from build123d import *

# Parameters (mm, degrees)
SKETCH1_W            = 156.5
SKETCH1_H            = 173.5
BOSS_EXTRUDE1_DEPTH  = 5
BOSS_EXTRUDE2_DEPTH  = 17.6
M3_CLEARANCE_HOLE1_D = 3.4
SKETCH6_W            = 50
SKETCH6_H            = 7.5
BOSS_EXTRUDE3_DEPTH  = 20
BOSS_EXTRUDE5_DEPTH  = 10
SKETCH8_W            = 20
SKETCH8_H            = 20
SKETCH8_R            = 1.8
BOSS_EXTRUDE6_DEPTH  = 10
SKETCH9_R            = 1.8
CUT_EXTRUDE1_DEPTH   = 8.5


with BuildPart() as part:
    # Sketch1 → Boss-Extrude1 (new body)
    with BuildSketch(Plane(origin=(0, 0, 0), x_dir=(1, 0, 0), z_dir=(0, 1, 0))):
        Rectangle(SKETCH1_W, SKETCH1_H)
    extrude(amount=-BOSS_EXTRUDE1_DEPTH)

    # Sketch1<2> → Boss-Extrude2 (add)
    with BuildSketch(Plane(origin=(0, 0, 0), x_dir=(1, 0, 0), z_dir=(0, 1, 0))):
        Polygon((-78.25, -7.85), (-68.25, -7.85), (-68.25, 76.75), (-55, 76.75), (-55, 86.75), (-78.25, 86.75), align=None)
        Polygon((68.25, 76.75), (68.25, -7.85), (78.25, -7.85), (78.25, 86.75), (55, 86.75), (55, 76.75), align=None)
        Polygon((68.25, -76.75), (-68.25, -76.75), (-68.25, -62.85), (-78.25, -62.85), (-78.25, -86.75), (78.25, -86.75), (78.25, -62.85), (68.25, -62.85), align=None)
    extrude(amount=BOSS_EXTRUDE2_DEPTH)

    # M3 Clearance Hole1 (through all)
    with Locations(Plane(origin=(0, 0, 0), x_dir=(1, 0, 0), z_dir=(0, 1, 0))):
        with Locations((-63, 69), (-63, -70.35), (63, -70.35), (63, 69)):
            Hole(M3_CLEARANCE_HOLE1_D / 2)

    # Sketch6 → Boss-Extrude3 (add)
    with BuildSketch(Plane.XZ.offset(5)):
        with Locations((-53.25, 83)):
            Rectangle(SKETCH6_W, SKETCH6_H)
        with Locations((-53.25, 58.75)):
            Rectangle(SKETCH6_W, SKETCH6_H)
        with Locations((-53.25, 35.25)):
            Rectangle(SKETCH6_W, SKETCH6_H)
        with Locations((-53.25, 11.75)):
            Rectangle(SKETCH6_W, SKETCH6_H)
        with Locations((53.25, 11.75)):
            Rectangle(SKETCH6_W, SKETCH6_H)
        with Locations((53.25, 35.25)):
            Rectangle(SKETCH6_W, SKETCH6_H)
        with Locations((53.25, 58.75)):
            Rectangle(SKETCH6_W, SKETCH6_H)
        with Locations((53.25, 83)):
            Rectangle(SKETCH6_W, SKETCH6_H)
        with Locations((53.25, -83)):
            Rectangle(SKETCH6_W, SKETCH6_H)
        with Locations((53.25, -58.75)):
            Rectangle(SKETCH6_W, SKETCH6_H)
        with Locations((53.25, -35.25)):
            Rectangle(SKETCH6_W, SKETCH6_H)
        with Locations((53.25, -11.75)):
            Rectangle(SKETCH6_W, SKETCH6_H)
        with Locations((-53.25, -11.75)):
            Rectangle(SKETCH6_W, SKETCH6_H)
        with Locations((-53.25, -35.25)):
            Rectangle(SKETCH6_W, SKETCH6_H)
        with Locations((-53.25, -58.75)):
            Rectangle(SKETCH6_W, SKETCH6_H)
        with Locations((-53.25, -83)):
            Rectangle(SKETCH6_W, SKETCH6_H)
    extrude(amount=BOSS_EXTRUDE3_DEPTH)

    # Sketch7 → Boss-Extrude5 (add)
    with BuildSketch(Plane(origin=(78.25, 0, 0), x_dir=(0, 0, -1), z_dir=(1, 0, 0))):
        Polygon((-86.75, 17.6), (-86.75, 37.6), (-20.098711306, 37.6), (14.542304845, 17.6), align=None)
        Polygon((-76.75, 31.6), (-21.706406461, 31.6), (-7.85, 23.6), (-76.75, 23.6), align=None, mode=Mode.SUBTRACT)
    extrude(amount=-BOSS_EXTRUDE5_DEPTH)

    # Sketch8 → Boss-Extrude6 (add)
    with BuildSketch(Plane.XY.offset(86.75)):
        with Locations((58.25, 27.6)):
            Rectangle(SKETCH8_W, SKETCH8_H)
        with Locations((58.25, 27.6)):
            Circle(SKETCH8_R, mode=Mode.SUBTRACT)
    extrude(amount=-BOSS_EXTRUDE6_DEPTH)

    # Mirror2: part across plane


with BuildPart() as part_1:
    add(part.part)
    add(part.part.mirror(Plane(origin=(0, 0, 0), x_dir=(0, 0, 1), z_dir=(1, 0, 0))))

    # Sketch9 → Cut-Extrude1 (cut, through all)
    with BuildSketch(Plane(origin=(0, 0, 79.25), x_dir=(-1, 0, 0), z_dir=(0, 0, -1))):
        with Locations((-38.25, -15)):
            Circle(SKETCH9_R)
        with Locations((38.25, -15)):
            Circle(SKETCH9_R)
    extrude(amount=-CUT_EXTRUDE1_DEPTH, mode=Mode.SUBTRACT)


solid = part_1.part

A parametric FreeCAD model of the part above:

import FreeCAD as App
import Part
import Sketcher

V = App.Vector
Q = App.Units.Quantity

doc = App.newDocument("Part")
body = doc.addObject("PartDesign::Body", "Body")

sketch1 = doc.addObject("Sketcher::SketchObject", "Sketch")
body.addObject(sketch1)
sketch1.AttachmentSupport = (doc.XZ_Plane, [""])
sketch1.MapMode = "FlatFace"
sketch1.addGeometry(Part.LineSegment(V(-78, -87, 0), V(-78, 87, 0)), False)
sketch1.addGeometry(Part.LineSegment(V(-78, 87, 0), V(78, 87, 0)), False)
sketch1.addGeometry(Part.LineSegment(V(78, 87, 0), V(78, -87, 0)), False)
sketch1.addGeometry(Part.LineSegment(V(78, -87, 0), V(-78, -87, 0)), False)
sketch1.addConstraint(Sketcher.Constraint("Coincident", 0, 2, 1, 1))
sketch1.addConstraint(Sketcher.Constraint("Coincident", 1, 2, 2, 1))
sketch1.addConstraint(Sketcher.Constraint("Coincident", 2, 2, 3, 1))
sketch1.addConstraint(Sketcher.Constraint("Coincident", 3, 2, 0, 1))
sketch1.addConstraint(Sketcher.Constraint("Vertical", 0))
sketch1.addConstraint(Sketcher.Constraint("Horizontal", 1))
sketch1.addConstraint(Sketcher.Constraint("Vertical", 2))
sketch1.addConstraint(Sketcher.Constraint("Horizontal", 3))
sketch1.addConstraint(Sketcher.Constraint("Symmetric", 0, 2, 2, 2, -1, 1))
sketch1.addConstraint(Sketcher.Constraint("DistanceX", 1, 1, 1, 2, Q("156.5 mm")))
sketch1.addConstraint(Sketcher.Constraint("DistanceY", 0, 1, 0, 2, Q("173.5 mm")))
pad1 = doc.addObject("PartDesign::Pad", "Pad")
body.addObject(pad1)
pad1.Profile = sketch1
pad1.Length = 5

sketch2 = doc.addObject("Sketcher::SketchObject", "Sketch001")
body.addObject(sketch2)
sketch2.AttachmentSupport = (doc.XZ_Plane, [""])
sketch2.MapMode = "FlatFace"
sketch2.addGeometry(Part.LineSegment(V(-78, 8, 0), V(-68, 8, 0)), False)
sketch2.addGeometry(Part.LineSegment(V(-68, 8, 0), V(-68, -77, 0)), False)
sketch2.addGeometry(Part.LineSegment(V(-68, -77, 0), V(-55, -77, 0)), False)
sketch2.addGeometry(Part.LineSegment(V(-55, -77, 0), V(-55, -87, 0)), False)
sketch2.addGeometry(Part.LineSegment(V(-55, -87, 0), V(-78, -87, 0)), False)
sketch2.addGeometry(Part.LineSegment(V(-78, -87, 0), V(-78, 8, 0)), False)
sketch2.addGeometry(Part.LineSegment(V(68, -77, 0), V(68, 8, 0)), False)
sketch2.addGeometry(Part.LineSegment(V(68, 8, 0), V(78, 8, 0)), False)
sketch2.addGeometry(Part.LineSegment(V(78, 8, 0), V(78, -87, 0)), False)
sketch2.addGeometry(Part.LineSegment(V(78, -87, 0), V(55, -87, 0)), False)
sketch2.addGeometry(Part.LineSegment(V(55, -87, 0), V(55, -77, 0)), False)
sketch2.addGeometry(Part.LineSegment(V(55, -77, 0), V(68, -77, 0)), False)
sketch2.addGeometry(Part.LineSegment(V(68, 77, 0), V(-68, 77, 0)), False)
sketch2.addGeometry(Part.LineSegment(V(-68, 77, 0), V(-68, 63, 0)), False)
sketch2.addGeometry(Part.LineSegment(V(-68, 63, 0), V(-78, 63, 0)), False)
sketch2.addGeometry(Part.LineSegment(V(-78, 63, 0), V(-78, 87, 0)), False)
sketch2.addGeometry(Part.LineSegment(V(-78, 87, 0), V(78, 87, 0)), False)
sketch2.addGeometry(Part.LineSegment(V(78, 87, 0), V(78, 63, 0)), False)
sketch2.addGeometry(Part.LineSegment(V(78, 63, 0), V(68, 63, 0)), False)
sketch2.addGeometry(Part.LineSegment(V(68, 63, 0), V(68, 77, 0)), False)
sketch2.addConstraint(Sketcher.Constraint("Coincident", 0, 2, 1, 1))
sketch2.addConstraint(Sketcher.Constraint("Coincident", 1, 2, 2, 1))
sketch2.addConstraint(Sketcher.Constraint("Coincident", 2, 2, 3, 1))
sketch2.addConstraint(Sketcher.Constraint("Coincident", 3, 2, 4, 1))
sketch2.addConstraint(Sketcher.Constraint("Coincident", 4, 2, 5, 1))
sketch2.addConstraint(Sketcher.Constraint("Coincident", 5, 2, 0, 1))
sketch2.addConstraint(Sketcher.Constraint("Coincident", 6, 2, 7, 1))
sketch2.addConstraint(Sketcher.Constraint("Coincident", 7, 2, 8, 1))
sketch2.addConstraint(Sketcher.Constraint("Coincident", 8, 2, 9, 1))
sketch2.addConstraint(Sketcher.Constraint("Coincident", 9, 2, 10, 1))
sketch2.addConstraint(Sketcher.Constraint("Coincident", 10, 2, 11, 1))
sketch2.addConstraint(Sketcher.Constraint("Coincident", 11, 2, 6, 1))
sketch2.addConstraint(Sketcher.Constraint("Coincident", 12, 2, 13, 1))
sketch2.addConstraint(Sketcher.Constraint("Coincident", 13, 2, 14, 1))
sketch2.addConstraint(Sketcher.Constraint("Coincident", 14, 2, 15, 1))
sketch2.addConstraint(Sketcher.Constraint("Coincident", 15, 2, 16, 1))
sketch2.addConstraint(Sketcher.Constraint("Coincident", 16, 2, 17, 1))
sketch2.addConstraint(Sketcher.Constraint("Coincident", 17, 2, 18, 1))
sketch2.addConstraint(Sketcher.Constraint("Coincident", 18, 2, 19, 1))
sketch2.addConstraint(Sketcher.Constraint("Coincident", 19, 2, 12, 1))
sketch2.addConstraint(Sketcher.Constraint("Horizontal", 0))
sketch2.addConstraint(Sketcher.Constraint("Vertical", 1))
sketch2.addConstraint(Sketcher.Constraint("Horizontal", 2))
sketch2.addConstraint(Sketcher.Constraint("Vertical", 3))
sketch2.addConstraint(Sketcher.Constraint("Horizontal", 4))
sketch2.addConstraint(Sketcher.Constraint("Vertical", 5))
sketch2.addConstraint(Sketcher.Constraint("Vertical", 6))
sketch2.addConstraint(Sketcher.Constraint("Horizontal", 7))
sketch2.addConstraint(Sketcher.Constraint("Vertical", 8))
sketch2.addConstraint(Sketcher.Constraint("Horizontal", 9))
sketch2.addConstraint(Sketcher.Constraint("Vertical", 10))
sketch2.addConstraint(Sketcher.Constraint("Horizontal", 11))
sketch2.addConstraint(Sketcher.Constraint("Horizontal", 12))
sketch2.addConstraint(Sketcher.Constraint("Vertical", 13))
sketch2.addConstraint(Sketcher.Constraint("Horizontal", 14))
sketch2.addConstraint(Sketcher.Constraint("Vertical", 15))
sketch2.addConstraint(Sketcher.Constraint("Horizontal", 16))
sketch2.addConstraint(Sketcher.Constraint("Vertical", 17))
sketch2.addConstraint(Sketcher.Constraint("Horizontal", 18))
sketch2.addConstraint(Sketcher.Constraint("Vertical", 19))
sketch2.addConstraint(Sketcher.Constraint("Symmetric", 11, 2, 12, 2, -1, 1))
sketch2.addConstraint(Sketcher.Constraint("Symmetric", 8, 2, 15, 2, -1, 1))
sketch2.addConstraint(Sketcher.Constraint("Symmetric", 4, 2, 16, 2, -1, 1))
sketch2.addConstraint(Sketcher.Constraint("Symmetric", 1, 2, 19, 2, -1, 1))
sketch2.addConstraint(Sketcher.Constraint("Symmetric", 0, 2, 6, 2, -2))
sketch2.addConstraint(Sketcher.Constraint("Symmetric", 14, 2, 17, 2, -2))
sketch2.addConstraint(Sketcher.Constraint("Equal", 4, 9))
sketch2.addConstraint(Sketcher.Constraint("Equal", 18, 3))
sketch2.addConstraint(Sketcher.Constraint("DistanceX", 0, 1, 0, 2, Q("10 mm")))
sketch2.addConstraint(Sketcher.Constraint("DistanceX", 12, 2, 12, 1, Q("136.5 mm")))
sketch2.addConstraint(Sketcher.Constraint("DistanceY", 1, 2, 1, 1, Q("84.6 mm")))
sketch2.addConstraint(Sketcher.Constraint("DistanceY", 13, 2, 13, 1, Q("13.9 mm")))
sketch2.addConstraint(Sketcher.Constraint("DistanceX", 2, 2, -1, 1, Q("55 mm")))
sketch2.addConstraint(Sketcher.Constraint("DistanceY", 0, 2, 13, 2, Q("55 mm")))
pad2 = doc.addObject("PartDesign::Pad", "Pad001")
body.addObject(pad2)
pad2.Profile = sketch2
pad2.Length = 17.6
pad2.Reversed = True

sketch3 = doc.addObject("Sketcher::SketchObject", "Sketch002")
body.addObject(sketch3)
sketch3.AttachmentSupport = (doc.XZ_Plane, [""])
sketch3.MapMode = "FlatFace"
sketch3.addGeometry(Part.Circle(V(-63, -69, 0), V(0, 0, 1), 1.7), False)
sketch3.addGeometry(Part.Circle(V(-63, 70.3, 0), V(0, 0, 1), 1.7), False)
sketch3.addGeometry(Part.Circle(V(63, 70.3, 0), V(0, 0, 1), 1.7), False)
sketch3.addGeometry(Part.Circle(V(63, -69, 0), V(0, 0, 1), 1.7), False)
sketch3.addConstraint(Sketcher.Constraint("Equal", 0, 1))
sketch3.addConstraint(Sketcher.Constraint("Equal", 1, 2))
sketch3.addConstraint(Sketcher.Constraint("Equal", 2, 3))
sketch3.addConstraint(Sketcher.Constraint("Symmetric", 1, 3, 2, 3, -2))
sketch3.addConstraint(Sketcher.Constraint("Symmetric", 0, 3, 3, 3, -2))
sketch3.addConstraint(Sketcher.Constraint("Vertical", 0, 3, 1, 3))
sketch3.addConstraint(Sketcher.Constraint("Diameter", 0, Q("3.4 mm")))
sketch3.addConstraint(Sketcher.Constraint("DistanceX", 0, 3, -1, 1, Q("63 mm")))
sketch3.addConstraint(Sketcher.Constraint("DistanceY", 0, 3, -1, 1, Q("69 mm")))
sketch3.addConstraint(Sketcher.Constraint("DistanceY", -1, 1, 1, 3, Q("70.35 mm")))
doc.recompute()
hole = doc.addObject("PartDesign::Hole", "Hole")
body.addObject(hole)
hole.Profile = sketch3
hole.ThreadType = "None"
hole.Diameter = 3.4
hole.DepthType = "ThroughAll"
hole.Reversed = True

sketch4 = doc.addObject("Sketcher::SketchObject", "Sketch003")
body.addObject(sketch4)
sketch4.AttachmentSupport = (doc.XZ_Plane, [""])
sketch4.MapMode = "FlatFace"
sketch4.AttachmentOffset = App.Placement(V(0, 0, 5), App.Rotation())
sketch4.addGeometry(Part.LineSegment(V(-78, 87, 0), V(-78, 79, 0)), False)
sketch4.addGeometry(Part.LineSegment(V(-78, 79, 0), V(-28, 79, 0)), False)
sketch4.addGeometry(Part.LineSegment(V(-28, 79, 0), V(-28, 87, 0)), False)
sketch4.addGeometry(Part.LineSegment(V(-28, 87, 0), V(-78, 87, 0)), False)
sketch4.addGeometry(Part.LineSegment(V(-78, 62, 0), V(-78, 55, 0)), False)
sketch4.addGeometry(Part.LineSegment(V(-78, 55, 0), V(-28, 55, 0)), False)
sketch4.addGeometry(Part.LineSegment(V(-28, 55, 0), V(-28, 62, 0)), False)
sketch4.addGeometry(Part.LineSegment(V(-28, 62, 0), V(-78, 62, 0)), False)
sketch4.addGeometry(Part.LineSegment(V(-78, 39, 0), V(-78, 32, 0)), False)
sketch4.addGeometry(Part.LineSegment(V(-78, 32, 0), V(-28, 32, 0)), False)
sketch4.addGeometry(Part.LineSegment(V(-28, 32, 0), V(-28, 39, 0)), False)
sketch4.addGeometry(Part.LineSegment(V(-28, 39, 0), V(-78, 39, 0)), False)
sketch4.addGeometry(Part.LineSegment(V(-78, 16, 0), V(-78, 8, 0)), False)
sketch4.addGeometry(Part.LineSegment(V(-78, 8, 0), V(-28, 8, 0)), False)
sketch4.addGeometry(Part.LineSegment(V(-28, 8, 0), V(-28, 16, 0)), False)
sketch4.addGeometry(Part.LineSegment(V(-28, 16, 0), V(-78, 16, 0)), False)
sketch4.addGeometry(Part.LineSegment(V(28, 16, 0), V(28, 8, 0)), False)
sketch4.addGeometry(Part.LineSegment(V(28, 8, 0), V(78, 8, 0)), False)
sketch4.addGeometry(Part.LineSegment(V(78, 8, 0), V(78, 16, 0)), False)
sketch4.addGeometry(Part.LineSegment(V(78, 16, 0), V(28, 16, 0)), False)
sketch4.addGeometry(Part.LineSegment(V(28, 39, 0), V(28, 32, 0)), False)
sketch4.addGeometry(Part.LineSegment(V(28, 32, 0), V(78, 32, 0)), False)
sketch4.addGeometry(Part.LineSegment(V(78, 32, 0), V(78, 39, 0)), False)
sketch4.addGeometry(Part.LineSegment(V(78, 39, 0), V(28, 39, 0)), False)
sketch4.addGeometry(Part.LineSegment(V(28, 62, 0), V(28, 55, 0)), False)
sketch4.addGeometry(Part.LineSegment(V(28, 55, 0), V(78, 55, 0)), False)
sketch4.addGeometry(Part.LineSegment(V(78, 55, 0), V(78, 62, 0)), False)
sketch4.addGeometry(Part.LineSegment(V(78, 62, 0), V(28, 62, 0)), False)
sketch4.addGeometry(Part.LineSegment(V(28, 87, 0), V(28, 79, 0)), False)
sketch4.addGeometry(Part.LineSegment(V(28, 79, 0), V(78, 79, 0)), False)
sketch4.addGeometry(Part.LineSegment(V(78, 79, 0), V(78, 87, 0)), False)
sketch4.addGeometry(Part.LineSegment(V(78, 87, 0), V(28, 87, 0)), False)
sketch4.addGeometry(Part.LineSegment(V(28, -79, 0), V(28, -87, 0)), False)
sketch4.addGeometry(Part.LineSegment(V(28, -87, 0), V(78, -87, 0)), False)
sketch4.addGeometry(Part.LineSegment(V(78, -87, 0), V(78, -79, 0)), False)
sketch4.addGeometry(Part.LineSegment(V(78, -79, 0), V(28, -79, 0)), False)
sketch4.addGeometry(Part.LineSegment(V(28, -55, 0), V(28, -62, 0)), False)
sketch4.addGeometry(Part.LineSegment(V(28, -62, 0), V(78, -62, 0)), False)
sketch4.addGeometry(Part.LineSegment(V(78, -62, 0), V(78, -55, 0)), False)
sketch4.addGeometry(Part.LineSegment(V(78, -55, 0), V(28, -55, 0)), False)
sketch4.addGeometry(Part.LineSegment(V(28, -32, 0), V(28, -39, 0)), False)
sketch4.addGeometry(Part.LineSegment(V(28, -39, 0), V(78, -39, 0)), False)
sketch4.addGeometry(Part.LineSegment(V(78, -39, 0), V(78, -32, 0)), False)
sketch4.addGeometry(Part.LineSegment(V(78, -32, 0), V(28, -32, 0)), False)
sketch4.addGeometry(Part.LineSegment(V(28, -8, 0), V(28, -16, 0)), False)
sketch4.addGeometry(Part.LineSegment(V(28, -16, 0), V(78, -16, 0)), False)
sketch4.addGeometry(Part.LineSegment(V(78, -16, 0), V(78, -8, 0)), False)
sketch4.addGeometry(Part.LineSegment(V(78, -8, 0), V(28, -8, 0)), False)
sketch4.addGeometry(Part.LineSegment(V(-78, -8, 0), V(-78, -16, 0)), False)
sketch4.addGeometry(Part.LineSegment(V(-78, -16, 0), V(-28, -16, 0)), False)
sketch4.addGeometry(Part.LineSegment(V(-28, -16, 0), V(-28, -8, 0)), False)
sketch4.addGeometry(Part.LineSegment(V(-28, -8, 0), V(-78, -8, 0)), False)
sketch4.addGeometry(Part.LineSegment(V(-78, -32, 0), V(-78, -39, 0)), False)
sketch4.addGeometry(Part.LineSegment(V(-78, -39, 0), V(-28, -39, 0)), False)
sketch4.addGeometry(Part.LineSegment(V(-28, -39, 0), V(-28, -32, 0)), False)
sketch4.addGeometry(Part.LineSegment(V(-28, -32, 0), V(-78, -32, 0)), False)
sketch4.addGeometry(Part.LineSegment(V(-78, -55, 0), V(-78, -62, 0)), False)
sketch4.addGeometry(Part.LineSegment(V(-78, -62, 0), V(-28, -62, 0)), False)
sketch4.addGeometry(Part.LineSegment(V(-28, -62, 0), V(-28, -55, 0)), False)
sketch4.addGeometry(Part.LineSegment(V(-28, -55, 0), V(-78, -55, 0)), False)
sketch4.addGeometry(Part.LineSegment(V(-78, -79, 0), V(-78, -87, 0)), False)
sketch4.addGeometry(Part.LineSegment(V(-78, -87, 0), V(-28, -87, 0)), False)
sketch4.addGeometry(Part.LineSegment(V(-28, -87, 0), V(-28, -79, 0)), False)
sketch4.addGeometry(Part.LineSegment(V(-28, -79, 0), V(-78, -79, 0)), False)
sketch4.addConstraint(Sketcher.Constraint("Coincident", 0, 2, 1, 1))
sketch4.addConstraint(Sketcher.Constraint("Coincident", 1, 2, 2, 1))
sketch4.addConstraint(Sketcher.Constraint("Coincident", 2, 2, 3, 1))
sketch4.addConstraint(Sketcher.Constraint("Coincident", 3, 2, 0, 1))
sketch4.addConstraint(Sketcher.Constraint("Coincident", 4, 2, 5, 1))
sketch4.addConstraint(Sketcher.Constraint("Coincident", 5, 2, 6, 1))
sketch4.addConstraint(Sketcher.Constraint("Coincident", 6, 2, 7, 1))
sketch4.addConstraint(Sketcher.Constraint("Coincident", 7, 2, 4, 1))
sketch4.addConstraint(Sketcher.Constraint("Coincident", 8, 2, 9, 1))
sketch4.addConstraint(Sketcher.Constraint("Coincident", 9, 2, 10, 1))
sketch4.addConstraint(Sketcher.Constraint("Coincident", 10, 2, 11, 1))
sketch4.addConstraint(Sketcher.Constraint("Coincident", 11, 2, 8, 1))
sketch4.addConstraint(Sketcher.Constraint("Coincident", 12, 2, 13, 1))
sketch4.addConstraint(Sketcher.Constraint("Coincident", 13, 2, 14, 1))
sketch4.addConstraint(Sketcher.Constraint("Coincident", 14, 2, 15, 1))
sketch4.addConstraint(Sketcher.Constraint("Coincident", 15, 2, 12, 1))
sketch4.addConstraint(Sketcher.Constraint("Coincident", 16, 2, 17, 1))
sketch4.addConstraint(Sketcher.Constraint("Coincident", 17, 2, 18, 1))
sketch4.addConstraint(Sketcher.Constraint("Coincident", 18, 2, 19, 1))
sketch4.addConstraint(Sketcher.Constraint("Coincident", 19, 2, 16, 1))
sketch4.addConstraint(Sketcher.Constraint("Coincident", 20, 2, 21, 1))
sketch4.addConstraint(Sketcher.Constraint("Coincident", 21, 2, 22, 1))
sketch4.addConstraint(Sketcher.Constraint("Coincident", 22, 2, 23, 1))
sketch4.addConstraint(Sketcher.Constraint("Coincident", 23, 2, 20, 1))
sketch4.addConstraint(Sketcher.Constraint("Coincident", 24, 2, 25, 1))
sketch4.addConstraint(Sketcher.Constraint("Coincident", 25, 2, 26, 1))
sketch4.addConstraint(Sketcher.Constraint("Coincident", 26, 2, 27, 1))
sketch4.addConstraint(Sketcher.Constraint("Coincident", 27, 2, 24, 1))
sketch4.addConstraint(Sketcher.Constraint("Coincident", 28, 2, 29, 1))
sketch4.addConstraint(Sketcher.Constraint("Coincident", 29, 2, 30, 1))
sketch4.addConstraint(Sketcher.Constraint("Coincident", 30, 2, 31, 1))
sketch4.addConstraint(Sketcher.Constraint("Coincident", 31, 2, 28, 1))
sketch4.addConstraint(Sketcher.Constraint("Coincident", 32, 2, 33, 1))
sketch4.addConstraint(Sketcher.Constraint("Coincident", 33, 2, 34, 1))
sketch4.addConstraint(Sketcher.Constraint("Coincident", 34, 2, 35, 1))
sketch4.addConstraint(Sketcher.Constraint("Coincident", 35, 2, 32, 1))
sketch4.addConstraint(Sketcher.Constraint("Coincident", 36, 2, 37, 1))
sketch4.addConstraint(Sketcher.Constraint("Coincident", 37, 2, 38, 1))
sketch4.addConstraint(Sketcher.Constraint("Coincident", 38, 2, 39, 1))
sketch4.addConstraint(Sketcher.Constraint("Coincident", 39, 2, 36, 1))
sketch4.addConstraint(Sketcher.Constraint("Coincident", 40, 2, 41, 1))
sketch4.addConstraint(Sketcher.Constraint("Coincident", 41, 2, 42, 1))
sketch4.addConstraint(Sketcher.Constraint("Coincident", 42, 2, 43, 1))
sketch4.addConstraint(Sketcher.Constraint("Coincident", 43, 2, 40, 1))
sketch4.addConstraint(Sketcher.Constraint("Coincident", 44, 2, 45, 1))
sketch4.addConstraint(Sketcher.Constraint("Coincident", 45, 2, 46, 1))
sketch4.addConstraint(Sketcher.Constraint("Coincident", 46, 2, 47, 1))
sketch4.addConstraint(Sketcher.Constraint("Coincident", 47, 2, 44, 1))
sketch4.addConstraint(Sketcher.Constraint("Coincident", 48, 2, 49, 1))
sketch4.addConstraint(Sketcher.Constraint("Coincident", 49, 2, 50, 1))
sketch4.addConstraint(Sketcher.Constraint("Coincident", 50, 2, 51, 1))
sketch4.addConstraint(Sketcher.Constraint("Coincident", 51, 2, 48, 1))
sketch4.addConstraint(Sketcher.Constraint("Coincident", 52, 2, 53, 1))
sketch4.addConstraint(Sketcher.Constraint("Coincident", 53, 2, 54, 1))
sketch4.addConstraint(Sketcher.Constraint("Coincident", 54, 2, 55, 1))
sketch4.addConstraint(Sketcher.Constraint("Coincident", 55, 2, 52, 1))
sketch4.addConstraint(Sketcher.Constraint("Coincident", 56, 2, 57, 1))
sketch4.addConstraint(Sketcher.Constraint("Coincident", 57, 2, 58, 1))
sketch4.addConstraint(Sketcher.Constraint("Coincident", 58, 2, 59, 1))
sketch4.addConstraint(Sketcher.Constraint("Coincident", 59, 2, 56, 1))
sketch4.addConstraint(Sketcher.Constraint("Coincident", 60, 2, 61, 1))
sketch4.addConstraint(Sketcher.Constraint("Coincident", 61, 2, 62, 1))
sketch4.addConstraint(Sketcher.Constraint("Coincident", 62, 2, 63, 1))
sketch4.addConstraint(Sketcher.Constraint("Coincident", 63, 2, 60, 1))
sketch4.addConstraint(Sketcher.Constraint("Vertical", 0))
sketch4.addConstraint(Sketcher.Constraint("Horizontal", 1))
sketch4.addConstraint(Sketcher.Constraint("Vertical", 2))
sketch4.addConstraint(Sketcher.Constraint("Horizontal", 3))
sketch4.addConstraint(Sketcher.Constraint("Vertical", 4))
sketch4.addConstraint(Sketcher.Constraint("Horizontal", 5))
sketch4.addConstraint(Sketcher.Constraint("Vertical", 6))
sketch4.addConstraint(Sketcher.Constraint("Horizontal", 7))
sketch4.addConstraint(Sketcher.Constraint("Vertical", 8))
sketch4.addConstraint(Sketcher.Constraint("Horizontal", 9))
sketch4.addConstraint(Sketcher.Constraint("Vertical", 10))
sketch4.addConstraint(Sketcher.Constraint("Horizontal", 11))
sketch4.addConstraint(Sketcher.Constraint("Vertical", 12))
sketch4.addConstraint(Sketcher.Constraint("Horizontal", 13))
sketch4.addConstraint(Sketcher.Constraint("Vertical", 14))
sketch4.addConstraint(Sketcher.Constraint("Horizontal", 15))
sketch4.addConstraint(Sketcher.Constraint("Vertical", 16))
sketch4.addConstraint(Sketcher.Constraint("Horizontal", 17))
sketch4.addConstraint(Sketcher.Constraint("Vertical", 18))
sketch4.addConstraint(Sketcher.Constraint("Horizontal", 19))
sketch4.addConstraint(Sketcher.Constraint("Vertical", 20))
sketch4.addConstraint(Sketcher.Constraint("Horizontal", 21))
sketch4.addConstraint(Sketcher.Constraint("Vertical", 22))
sketch4.addConstraint(Sketcher.Constraint("Horizontal", 23))
sketch4.addConstraint(Sketcher.Constraint("Vertical", 24))
sketch4.addConstraint(Sketcher.Constraint("Horizontal", 25))
sketch4.addConstraint(Sketcher.Constraint("Vertical", 26))
sketch4.addConstraint(Sketcher.Constraint("Horizontal", 27))
sketch4.addConstraint(Sketcher.Constraint("Vertical", 28))
sketch4.addConstraint(Sketcher.Constraint("Horizontal", 29))
sketch4.addConstraint(Sketcher.Constraint("Vertical", 30))
sketch4.addConstraint(Sketcher.Constraint("Horizontal", 31))
sketch4.addConstraint(Sketcher.Constraint("Vertical", 32))
sketch4.addConstraint(Sketcher.Constraint("Horizontal", 33))
sketch4.addConstraint(Sketcher.Constraint("Vertical", 34))
sketch4.addConstraint(Sketcher.Constraint("Horizontal", 35))
sketch4.addConstraint(Sketcher.Constraint("Vertical", 36))
sketch4.addConstraint(Sketcher.Constraint("Horizontal", 37))
sketch4.addConstraint(Sketcher.Constraint("Vertical", 38))
sketch4.addConstraint(Sketcher.Constraint("Horizontal", 39))
sketch4.addConstraint(Sketcher.Constraint("Vertical", 40))
sketch4.addConstraint(Sketcher.Constraint("Horizontal", 41))
sketch4.addConstraint(Sketcher.Constraint("Vertical", 42))
sketch4.addConstraint(Sketcher.Constraint("Horizontal", 43))
sketch4.addConstraint(Sketcher.Constraint("Vertical", 44))
sketch4.addConstraint(Sketcher.Constraint("Horizontal", 45))
sketch4.addConstraint(Sketcher.Constraint("Vertical", 46))
sketch4.addConstraint(Sketcher.Constraint("Horizontal", 47))
sketch4.addConstraint(Sketcher.Constraint("Vertical", 48))
sketch4.addConstraint(Sketcher.Constraint("Horizontal", 49))
sketch4.addConstraint(Sketcher.Constraint("Vertical", 50))
sketch4.addConstraint(Sketcher.Constraint("Horizontal", 51))
sketch4.addConstraint(Sketcher.Constraint("Vertical", 52))
sketch4.addConstraint(Sketcher.Constraint("Horizontal", 53))
sketch4.addConstraint(Sketcher.Constraint("Vertical", 54))
sketch4.addConstraint(Sketcher.Constraint("Horizontal", 55))
sketch4.addConstraint(Sketcher.Constraint("Vertical", 56))
sketch4.addConstraint(Sketcher.Constraint("Horizontal", 57))
sketch4.addConstraint(Sketcher.Constraint("Vertical", 58))
sketch4.addConstraint(Sketcher.Constraint("Horizontal", 59))
sketch4.addConstraint(Sketcher.Constraint("Vertical", 60))
sketch4.addConstraint(Sketcher.Constraint("Horizontal", 61))
sketch4.addConstraint(Sketcher.Constraint("Vertical", 62))
sketch4.addConstraint(Sketcher.Constraint("Horizontal", 63))
sketch4.addConstraint(Sketcher.Constraint("Symmetric", 2, 2, 32, 2, -1, 1))
sketch4.addConstraint(Sketcher.Constraint("Symmetric", 0, 2, 34, 2, -1, 1))
sketch4.addConstraint(Sketcher.Constraint("Symmetric", 6, 2, 36, 2, -1, 1))
sketch4.addConstraint(Sketcher.Constraint("Symmetric", 4, 2, 38, 2, -1, 1))
sketch4.addConstraint(Sketcher.Constraint("Symmetric", 10, 2, 40, 2, -1, 1))
sketch4.addConstraint(Sketcher.Constraint("Symmetric", 8, 2, 42, 2, -1, 1))
sketch4.addConstraint(Sketcher.Constraint("Symmetric", 14, 2, 44, 2, -1, 1))
sketch4.addConstraint(Sketcher.Constraint("Symmetric", 12, 2, 46, 2, -1, 1))
sketch4.addConstraint(Sketcher.Constraint("Symmetric", 18, 2, 48, 2, -1, 1))
sketch4.addConstraint(Sketcher.Constraint("Symmetric", 16, 2, 50, 2, -1, 1))
sketch4.addConstraint(Sketcher.Constraint("Symmetric", 22, 2, 52, 2, -1, 1))
sketch4.addConstraint(Sketcher.Constraint("Symmetric", 20, 2, 54, 2, -1, 1))
sketch4.addConstraint(Sketcher.Constraint("Symmetric", 26, 2, 56, 2, -1, 1))
sketch4.addConstraint(Sketcher.Constraint("Symmetric", 24, 2, 58, 2, -1, 1))
sketch4.addConstraint(Sketcher.Constraint("Symmetric", 30, 2, 60, 2, -1, 1))
sketch4.addConstraint(Sketcher.Constraint("Symmetric", 28, 2, 62, 2, -1, 1))
sketch4.addConstraint(Sketcher.Constraint("Symmetric", 13, 2, 16, 2, -2))
sketch4.addConstraint(Sketcher.Constraint("Symmetric", 15, 2, 18, 2, -2))
sketch4.addConstraint(Sketcher.Constraint("Symmetric", 9, 2, 20, 2, -2))
sketch4.addConstraint(Sketcher.Constraint("Symmetric", 11, 2, 22, 2, -2))
sketch4.addConstraint(Sketcher.Constraint("Symmetric", 5, 2, 24, 2, -2))
sketch4.addConstraint(Sketcher.Constraint("Symmetric", 7, 2, 26, 2, -2))
sketch4.addConstraint(Sketcher.Constraint("Symmetric", 1, 2, 28, 2, -2))
sketch4.addConstraint(Sketcher.Constraint("Symmetric", 3, 2, 30, 2, -2))
sketch4.addConstraint(Sketcher.Constraint("Vertical", 3, 2, 4, 2))
sketch4.addConstraint(Sketcher.Constraint("Vertical", 2, 2, 5, 2))
sketch4.addConstraint(Sketcher.Constraint("Vertical", 7, 2, 8, 2))
sketch4.addConstraint(Sketcher.Constraint("Vertical", 6, 2, 9, 2))
sketch4.addConstraint(Sketcher.Constraint("Vertical", 11, 2, 12, 2))
sketch4.addConstraint(Sketcher.Constraint("Vertical", 10, 2, 13, 2))
sketch4.addConstraint(Sketcher.Constraint("Equal", 2, 4))
sketch4.addConstraint(Sketcher.Constraint("Equal", 6, 8))
sketch4.addConstraint(Sketcher.Constraint("Equal", 10, 12))
sketch4.addConstraint(Sketcher.Constraint("DistanceX", 1, 1, 1, 2, Q("50 mm")))
sketch4.addConstraint(Sketcher.Constraint("DistanceY", 0, 2, 0, 1, Q("7.5 mm")))
sketch4.addConstraint(Sketcher.Constraint("DistanceY", -1, 1, 4, 2, Q("55 mm")))
sketch4.addConstraint(Sketcher.Constraint("DistanceY", -1, 1, 10, 2, Q("39 mm")))
sketch4.addConstraint(Sketcher.Constraint("DistanceY", -1, 1, 12, 2, Q("8 mm")))
sketch4.addConstraint(Sketcher.Constraint("DistanceX", 0, 2, -1, 1, Q("78.25 mm")))
sketch4.addConstraint(Sketcher.Constraint("DistanceY", -1, 1, 0, 2, Q("79.25 mm")))
pad3 = doc.addObject("PartDesign::Pad", "Pad002")
body.addObject(pad3)
pad3.Profile = sketch4
pad3.Length = 20

sketch5 = doc.addObject("Sketcher::SketchObject", "Sketch004")
body.addObject(sketch5)
sketch5.AttachmentSupport = (doc.YZ_Plane, [""])
sketch5.MapMode = "FlatFace"
sketch5.AttachmentOffset = App.Placement(V(0, 0, 78.25), App.Rotation())
sketch5.addGeometry(Part.LineSegment(V(38, 87, 0), V(18, 87, 0)), False)
sketch5.addGeometry(Part.LineSegment(V(18, 87, 0), V(18, -15, 0)), False)
sketch5.addGeometry(Part.LineSegment(V(18, -15, 0), V(38, 20, 0)), False)
sketch5.addGeometry(Part.LineSegment(V(38, 20, 0), V(38, 87, 0)), False)
sketch5.addGeometry(Part.LineSegment(V(32, 77, 0), V(32, 22, 0)), False)
sketch5.addGeometry(Part.LineSegment(V(32, 22, 0), V(24, 8, 0)), False)
sketch5.addGeometry(Part.LineSegment(V(24, 8, 0), V(24, 77, 0)), False)
sketch5.addGeometry(Part.LineSegment(V(24, 77, 0), V(32, 77, 0)), False)
sketch5.addConstraint(Sketcher.Constraint("Coincident", 0, 2, 1, 1))
sketch5.addConstraint(Sketcher.Constraint("Coincident", 1, 2, 2, 1))
sketch5.addConstraint(Sketcher.Constraint("Coincident", 2, 2, 3, 1))
sketch5.addConstraint(Sketcher.Constraint("Coincident", 3, 2, 0, 1))
sketch5.addConstraint(Sketcher.Constraint("Coincident", 4, 2, 5, 1))
sketch5.addConstraint(Sketcher.Constraint("Coincident", 5, 2, 6, 1))
sketch5.addConstraint(Sketcher.Constraint("Coincident", 6, 2, 7, 1))
sketch5.addConstraint(Sketcher.Constraint("Coincident", 7, 2, 4, 1))
sketch5.addConstraint(Sketcher.Constraint("Horizontal", 0))
sketch5.addConstraint(Sketcher.Constraint("Vertical", 1))
sketch5.addConstraint(Sketcher.Constraint("Vertical", 3))
sketch5.addConstraint(Sketcher.Constraint("Vertical", 4))
sketch5.addConstraint(Sketcher.Constraint("Vertical", 6))
sketch5.addConstraint(Sketcher.Constraint("Horizontal", 7))
sketch5.addConstraint(Sketcher.Constraint("Parallel", 2, 5))
sketch5.addConstraint(Sketcher.Constraint("DistanceX", 0, 2, 0, 1, Q("20 mm")))
sketch5.addConstraint(Sketcher.Constraint("DistanceX", 7, 1, 7, 2, Q("8 mm")))
sketch5.addConstraint(Sketcher.Constraint("Angle", 2, Q("60 deg")))
sketch5.addConstraint(Sketcher.Constraint("DistanceY", 6, 1, 6, 2, Q("68.9 mm")))
sketch5.addConstraint(Sketcher.Constraint("DistanceX", 4, 2, 2, 2, Q("6 mm")))
sketch5.addConstraint(Sketcher.Constraint("DistanceY", 6, 2, 0, 2, Q("10 mm")))
sketch5.addConstraint(Sketcher.Constraint("DistanceX", -1, 1, 0, 2, Q("17.6 mm")))
sketch5.addConstraint(Sketcher.Constraint("DistanceY", -1, 1, 0, 2, Q("86.75 mm")))
sketch5.addConstraint(Sketcher.Constraint("DistanceY", 3, 1, 3, 2, Q("66.651289 mm")))
pad4 = doc.addObject("PartDesign::Pad", "Pad003")
body.addObject(pad4)
pad4.Profile = sketch5
pad4.Length = 10
pad4.Reversed = True

sketch6 = doc.addObject("Sketcher::SketchObject", "Sketch005")
body.addObject(sketch6)
sketch6.AttachmentSupport = (doc.XY_Plane, [""])
sketch6.MapMode = "FlatFace"
sketch6.AttachmentOffset = App.Placement(V(0, 0, 86.75), App.Rotation())
sketch6.addGeometry(Part.LineSegment(V(48.2, 37.6, 0), V(48.2, 17.6, 0)), False)
sketch6.addGeometry(Part.LineSegment(V(48.2, 17.6, 0), V(68.2, 17.6, 0)), False)
sketch6.addGeometry(Part.LineSegment(V(68.2, 17.6, 0), V(68.2, 37.6, 0)), False)
sketch6.addGeometry(Part.LineSegment(V(68.2, 37.6, 0), V(48.2, 37.6, 0)), False)
sketch6.addGeometry(Part.Circle(V(58.2, 27.6, 0), V(0, 0, 1), 1.8), False)
sketch6.addConstraint(Sketcher.Constraint("Coincident", 0, 2, 1, 1))
sketch6.addConstraint(Sketcher.Constraint("Coincident", 1, 2, 2, 1))
sketch6.addConstraint(Sketcher.Constraint("Coincident", 2, 2, 3, 1))
sketch6.addConstraint(Sketcher.Constraint("Coincident", 3, 2, 0, 1))
sketch6.addConstraint(Sketcher.Constraint("Vertical", 0))
sketch6.addConstraint(Sketcher.Constraint("Horizontal", 1))
sketch6.addConstraint(Sketcher.Constraint("Vertical", 2))
sketch6.addConstraint(Sketcher.Constraint("Horizontal", 3))
sketch6.addConstraint(Sketcher.Constraint("Equal", 3, 0))
sketch6.addConstraint(Sketcher.Constraint("Diameter", 4, Q("3.6 mm")))
sketch6.addConstraint(Sketcher.Constraint("DistanceX", 1, 1, 1, 2, Q("20 mm")))
sketch6.addConstraint(Sketcher.Constraint("DistanceX", 0, 2, 4, 3, Q("10 mm")))
sketch6.addConstraint(Sketcher.Constraint("DistanceY", 0, 2, 4, 3, Q("10 mm")))
sketch6.addConstraint(Sketcher.Constraint("DistanceY", -1, 1, 4, 3, Q("27.6 mm")))
sketch6.addConstraint(Sketcher.Constraint("DistanceX", -1, 1, 4, 3, Q("58.25 mm")))
pad5 = doc.addObject("PartDesign::Pad", "Pad004")
body.addObject(pad5)
pad5.Profile = sketch6
pad5.Length = 10
pad5.Reversed = True
body2 = doc.addObject("PartDesign::Body", "Body001")
doc.recompute()

body2.BaseFeature = body
doc.recompute()

mirroring = doc.addObject("Part::Mirroring", "Mirroring")
mirroring.Source = body
mirroring.Base = V(0, 0, 0)
mirroring.Normal = V(1, 0, 0)
body3 = doc.addObject("PartDesign::Body", "Body002")
body3.BaseFeature = mirroring
boolean = doc.addObject("PartDesign::Boolean", "Boolean")
body2.addObject(boolean)
boolean.Type = "Fuse"
boolean.addObjects([body3])
doc.recompute()

sketch7 = doc.addObject("Sketcher::SketchObject", "Sketch006")
body2.addObject(sketch7)
sketch7.AttachmentSupport = (doc.getObject("XY_Plane001"), [""])
sketch7.MapMode = "FlatFace"
sketch7.AttachmentOffset = App.Placement(V(0, 0, 79.25), App.Rotation())
sketch7.addGeometry(Part.Circle(V(38.2, -15, 0), V(0, 0, 1), 1.8), False)
sketch7.addGeometry(Part.Circle(V(-38.2, -15, 0), V(0, 0, 1), 1.8), False)
sketch7.addConstraint(Sketcher.Constraint("Equal", 0, 1))
sketch7.addConstraint(Sketcher.Constraint("Symmetric", 0, 3, 1, 3, -2))
sketch7.addConstraint(Sketcher.Constraint("Diameter", 0, Q("3.6 mm")))
sketch7.addConstraint(Sketcher.Constraint("DistanceY", 0, 3, -1, 1, Q("15 mm")))
sketch7.addConstraint(Sketcher.Constraint("DistanceX", 1, 3, 0, 3, Q("76.5 mm")))
pocket1 = doc.addObject("PartDesign::Pocket", "Pocket")
body2.addObject(pocket1)
pocket1.Profile = sketch7
pocket1.Type = "ThroughAll"
pocket1.Reversed = True
mirroring.Visibility = False

doc.recompute()
